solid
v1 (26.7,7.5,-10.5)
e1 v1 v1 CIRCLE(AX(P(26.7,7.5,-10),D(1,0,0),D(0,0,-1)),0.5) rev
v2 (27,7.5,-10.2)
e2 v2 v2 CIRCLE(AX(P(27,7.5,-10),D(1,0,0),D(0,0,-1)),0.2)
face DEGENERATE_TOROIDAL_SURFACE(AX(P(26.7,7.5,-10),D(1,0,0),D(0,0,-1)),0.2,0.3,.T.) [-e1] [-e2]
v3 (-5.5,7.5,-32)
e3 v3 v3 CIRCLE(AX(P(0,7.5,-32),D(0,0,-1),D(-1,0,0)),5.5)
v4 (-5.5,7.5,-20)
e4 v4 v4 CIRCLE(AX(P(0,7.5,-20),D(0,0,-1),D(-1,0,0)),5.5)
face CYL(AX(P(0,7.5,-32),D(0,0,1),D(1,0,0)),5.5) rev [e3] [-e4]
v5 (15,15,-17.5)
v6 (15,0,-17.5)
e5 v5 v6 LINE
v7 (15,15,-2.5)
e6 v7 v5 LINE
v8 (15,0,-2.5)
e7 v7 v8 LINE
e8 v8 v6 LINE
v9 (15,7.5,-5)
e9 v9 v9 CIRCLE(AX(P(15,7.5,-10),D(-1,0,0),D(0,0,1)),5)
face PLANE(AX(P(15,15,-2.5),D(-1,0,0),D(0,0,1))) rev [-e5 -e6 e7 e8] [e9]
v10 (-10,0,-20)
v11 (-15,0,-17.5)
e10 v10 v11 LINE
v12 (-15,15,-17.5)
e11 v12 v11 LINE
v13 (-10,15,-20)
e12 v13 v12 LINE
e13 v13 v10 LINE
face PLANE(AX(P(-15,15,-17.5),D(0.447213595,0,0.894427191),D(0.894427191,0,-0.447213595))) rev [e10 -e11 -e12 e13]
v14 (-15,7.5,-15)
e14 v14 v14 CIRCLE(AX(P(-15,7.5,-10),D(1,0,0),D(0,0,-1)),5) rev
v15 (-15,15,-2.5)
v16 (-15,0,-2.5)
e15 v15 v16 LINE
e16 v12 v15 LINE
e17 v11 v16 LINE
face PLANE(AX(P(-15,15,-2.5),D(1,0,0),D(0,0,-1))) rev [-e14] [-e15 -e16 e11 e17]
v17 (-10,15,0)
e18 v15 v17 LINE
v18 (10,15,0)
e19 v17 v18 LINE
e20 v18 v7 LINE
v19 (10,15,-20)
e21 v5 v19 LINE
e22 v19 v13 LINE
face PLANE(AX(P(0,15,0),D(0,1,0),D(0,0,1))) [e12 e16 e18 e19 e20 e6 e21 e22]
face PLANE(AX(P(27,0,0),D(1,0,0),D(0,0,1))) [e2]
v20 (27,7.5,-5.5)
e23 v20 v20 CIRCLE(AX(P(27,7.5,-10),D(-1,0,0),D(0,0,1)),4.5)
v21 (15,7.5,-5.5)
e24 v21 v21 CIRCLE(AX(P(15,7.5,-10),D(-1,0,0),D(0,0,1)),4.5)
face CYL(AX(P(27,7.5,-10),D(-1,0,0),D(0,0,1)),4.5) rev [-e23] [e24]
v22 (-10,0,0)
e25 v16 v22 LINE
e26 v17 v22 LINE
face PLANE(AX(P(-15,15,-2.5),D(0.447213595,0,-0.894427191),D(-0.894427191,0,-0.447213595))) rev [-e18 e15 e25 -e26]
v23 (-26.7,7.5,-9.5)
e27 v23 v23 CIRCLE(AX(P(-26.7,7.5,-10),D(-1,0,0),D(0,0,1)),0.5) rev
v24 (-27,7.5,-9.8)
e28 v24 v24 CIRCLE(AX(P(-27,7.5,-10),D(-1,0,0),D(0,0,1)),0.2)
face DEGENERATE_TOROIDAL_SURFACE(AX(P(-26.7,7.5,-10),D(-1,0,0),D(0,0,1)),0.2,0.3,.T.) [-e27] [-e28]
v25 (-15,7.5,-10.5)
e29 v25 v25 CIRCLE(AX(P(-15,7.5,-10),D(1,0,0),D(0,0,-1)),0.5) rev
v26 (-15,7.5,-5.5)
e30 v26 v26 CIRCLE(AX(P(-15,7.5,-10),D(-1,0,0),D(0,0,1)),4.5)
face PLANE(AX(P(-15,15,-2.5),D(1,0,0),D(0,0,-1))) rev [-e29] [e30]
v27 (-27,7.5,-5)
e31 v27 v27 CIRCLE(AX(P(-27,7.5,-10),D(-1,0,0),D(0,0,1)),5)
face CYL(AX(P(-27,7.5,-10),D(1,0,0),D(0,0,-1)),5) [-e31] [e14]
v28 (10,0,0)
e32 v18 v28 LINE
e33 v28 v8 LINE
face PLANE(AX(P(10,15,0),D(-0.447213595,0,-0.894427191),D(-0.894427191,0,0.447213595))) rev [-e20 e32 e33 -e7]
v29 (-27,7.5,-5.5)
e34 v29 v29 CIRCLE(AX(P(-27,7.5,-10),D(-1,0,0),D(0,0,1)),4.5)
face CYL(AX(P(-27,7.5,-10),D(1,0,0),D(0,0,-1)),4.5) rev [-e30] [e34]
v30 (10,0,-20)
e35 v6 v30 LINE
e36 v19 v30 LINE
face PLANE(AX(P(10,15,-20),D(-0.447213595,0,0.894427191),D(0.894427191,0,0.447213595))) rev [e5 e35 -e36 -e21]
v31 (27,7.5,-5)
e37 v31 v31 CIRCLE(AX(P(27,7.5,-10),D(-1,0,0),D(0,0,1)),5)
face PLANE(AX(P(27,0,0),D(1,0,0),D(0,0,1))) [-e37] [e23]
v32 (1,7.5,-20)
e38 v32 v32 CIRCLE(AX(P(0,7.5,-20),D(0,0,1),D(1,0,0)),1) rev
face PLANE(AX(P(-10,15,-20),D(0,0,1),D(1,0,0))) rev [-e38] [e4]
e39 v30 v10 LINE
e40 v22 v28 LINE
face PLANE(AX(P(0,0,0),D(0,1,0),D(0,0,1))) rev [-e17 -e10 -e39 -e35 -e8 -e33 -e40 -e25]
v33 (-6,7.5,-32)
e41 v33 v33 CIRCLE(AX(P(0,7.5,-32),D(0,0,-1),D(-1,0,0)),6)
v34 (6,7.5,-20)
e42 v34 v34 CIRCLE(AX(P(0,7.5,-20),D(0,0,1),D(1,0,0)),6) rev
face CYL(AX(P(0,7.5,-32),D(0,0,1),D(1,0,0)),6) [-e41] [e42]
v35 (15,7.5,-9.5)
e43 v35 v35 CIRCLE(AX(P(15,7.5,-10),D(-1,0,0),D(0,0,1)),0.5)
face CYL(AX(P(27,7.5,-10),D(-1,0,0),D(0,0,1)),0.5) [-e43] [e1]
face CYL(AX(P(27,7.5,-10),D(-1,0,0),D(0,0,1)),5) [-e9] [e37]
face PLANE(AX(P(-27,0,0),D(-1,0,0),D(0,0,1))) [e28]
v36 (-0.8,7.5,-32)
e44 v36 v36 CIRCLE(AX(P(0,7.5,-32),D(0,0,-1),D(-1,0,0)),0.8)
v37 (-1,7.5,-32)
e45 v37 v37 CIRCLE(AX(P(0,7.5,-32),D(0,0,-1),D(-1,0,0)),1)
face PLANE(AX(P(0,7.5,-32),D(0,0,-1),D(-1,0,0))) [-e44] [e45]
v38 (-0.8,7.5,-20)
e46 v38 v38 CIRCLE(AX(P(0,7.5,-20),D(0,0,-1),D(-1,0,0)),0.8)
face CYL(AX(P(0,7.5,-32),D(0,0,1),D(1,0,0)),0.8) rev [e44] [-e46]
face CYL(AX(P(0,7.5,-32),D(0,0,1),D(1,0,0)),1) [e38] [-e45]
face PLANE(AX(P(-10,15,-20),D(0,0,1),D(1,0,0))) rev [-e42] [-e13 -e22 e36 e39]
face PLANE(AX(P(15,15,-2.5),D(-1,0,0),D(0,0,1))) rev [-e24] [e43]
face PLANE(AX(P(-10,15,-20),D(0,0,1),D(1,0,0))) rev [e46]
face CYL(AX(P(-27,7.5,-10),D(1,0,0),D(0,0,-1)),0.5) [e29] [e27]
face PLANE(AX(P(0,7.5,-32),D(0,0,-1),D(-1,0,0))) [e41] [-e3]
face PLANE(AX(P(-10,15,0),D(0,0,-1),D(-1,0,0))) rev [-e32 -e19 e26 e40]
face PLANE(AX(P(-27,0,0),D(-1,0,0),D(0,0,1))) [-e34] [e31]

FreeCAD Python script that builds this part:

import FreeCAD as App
import Part
import Sketcher
from FreeCAD import Vector


def edges_at(feature, points):
    """Names of the edges that pass closest to the given points."""
    edges = feature.Shape.Edges
    near = lambda p: min(range(len(edges)), key=lambda i: edges[i].distToShape(Part.Vertex(*p))[0])
    return sorted({f"Edge{near(p) + 1}" for p in points})

doc = App.newDocument("Part")
body = doc.addObject("PartDesign::Body", "Body")

# Sketch on XZ plane
sketch1 = body.newObject("Sketcher::SketchObject", "Sketch")
sketch1.AttachmentSupport = (doc.getObject("XZ_Plane"), [""])
sketch1.MapMode = "FlatFace"
sketch1.addGeometry([
    Part.LineSegment(Vector(15, -18, 0), Vector(10, -20, 0)),  # 0
    Part.LineSegment(Vector(10, -20, 0), Vector(-10, -20, 0)),  # 1
    Part.LineSegment(Vector(-10, -20, 0), Vector(-15, -18, 0)),  # 2
    Part.LineSegment(Vector(-15, -18, 0), Vector(-15, -2, 0)),  # 3
    Part.LineSegment(Vector(-15, -2, 0), Vector(-10, 0, 0)),  # 4
    Part.LineSegment(Vector(-10, 0, 0), Vector(10, 0, 0)),  # 5
    Part.LineSegment(Vector(10, 0, 0), Vector(15, -2, 0)),  # 6
    Part.LineSegment(Vector(15, -2, 0), Vector(15, -18, 0)),  # 7
], False)
sketch1.addConstraint([
    Sketcher.Constraint("Coincident", 0, 2, 1, 1),
    Sketcher.Constraint("Coincident", 1, 2, 2, 1),
    Sketcher.Constraint("Coincident", 2, 2, 3, 1),
    Sketcher.Constraint("Coincident", 3, 2, 4, 1),
    Sketcher.Constraint("Coincident", 4, 2, 5, 1),
    Sketcher.Constraint("Coincident", 5, 2, 6, 1),
    Sketcher.Constraint("Coincident", 6, 2, 7, 1),
    Sketcher.Constraint("Coincident", 7, 2, 0, 1),
    Sketcher.Constraint("Horizontal", 1),
    Sketcher.Constraint("Vertical", 3),
    Sketcher.Constraint("Horizontal", 5),
    Sketcher.Constraint("Vertical", 7),
    Sketcher.Constraint("Symmetric", 4, 2, 5, 2, -1, 1),
    Sketcher.Constraint("Symmetric", 3, 2, 6, 2, -2),
    Sketcher.Constraint("Parallel", 0, 4),
    Sketcher.Constraint("Parallel", 2, 6),
    Sketcher.Constraint("Horizontal", 2, 2, 7, 2),
    Sketcher.Constraint("Vertical", 1, 2, 4, 2),
    Sketcher.Constraint("DistanceX", 1, 2, 1, 1, 20.0),
    Sketcher.Constraint("DistanceY", 3, 1, 3, 2, 15.0),
    Sketcher.Constraint("DistanceY", 0, 2, -1, 1, 20.0),
    Sketcher.Constraint("DistanceX", 2, 2, -1, 1, 15.0),
])
pad1 = body.newObject("PartDesign::Pad", "Pad")
pad1.Profile = sketch1
pad1.Length = 15
pad1.Reversed = True

# Sketch on XY plane
sketch2 = body.newObject("Sketcher::SketchObject", "Sketch001")
sketch2.AttachmentSupport = (doc.getObject("XY_Plane"), [""])
sketch2.MapMode = "FlatFace"
sketch2.AttachmentOffset = App.Placement(Vector(0, 0, -20), App.Rotation())
sketch2.addGeometry([
    Part.Circle(Vector(0, 8, 0), Vector(0, 0, 1), 6),
    Part.Circle(Vector(0, 8, 0), Vector(0, 0, 1), 6),
], False)
sketch2.addConstraint([
    Sketcher.Constraint("Coincident", 1, 3, 0, 3),
    Sketcher.Constraint("PointOnObject", 0, 3, -2),
    Sketcher.Constraint("Diameter", 0, 12.0),
    Sketcher.Constraint("Diameter", 1, 11.0),
    Sketcher.Constraint("DistanceY", -1, 1, 0, 3, 7.5),
])
pad2 = body.newObject("PartDesign::Pad", "Pad001")
pad2.Profile = sketch2
pad2.Length = 12
pad2.Reversed = True

# Sketch on XY plane
sketch3 = body.newObject("Sketcher::SketchObject", "Sketch002")
sketch3.AttachmentSupport = (doc.getObject("XY_Plane"), [""])
sketch3.MapMode = "FlatFace"
sketch3.AttachmentOffset = App.Placement(Vector(0, 0, -20), App.Rotation())
sketch3.addGeometry([
    Part.Circle(Vector(0, 7.5, 0), Vector(0, 0, 1), 1),
    Part.Circle(Vector(0, 7.5, 0), Vector(0, 0, 1), 0.8),
], False)
sketch3.addConstraint([
    Sketcher.Constraint("Coincident", 1, 3, 0, 3),
    Sketcher.Constraint("PointOnObject", 0, 3, -2),
    Sketcher.Constraint("Diameter", 0, 2.0),
    Sketcher.Constraint("Diameter", 1, 1.6),
    Sketcher.Constraint("DistanceY", -1, 1, 0, 3, 7.5),
])
pad3 = body.newObject("PartDesign::Pad", "Pad002")
pad3.Profile = sketch3
pad3.Length = 12
pad3.Reversed = True

# Sketch on YZ plane
sketch4 = body.newObject("Sketcher::SketchObject", "Sketch003")
sketch4.AttachmentSupport = (doc.getObject("YZ_Plane"), [""])
sketch4.MapMode = "FlatFace"
sketch4.AttachmentOffset = App.Placement(Vector(0, 0, -15), App.Rotation())
sketch4.addGeometry([
    Part.Circle(Vector(7.5, -10, 0), Vector(0, 0, 1), 5),
    Part.Circle(Vector(7.5, -10, 0), Vector(0, 0, 1), 4.5),
    Part.Circle(Vector(7.5, -10, 0), Vector(0, 0, 1), 0.5),
], False)
sketch4.addConstraint([
    Sketcher.Constraint("Coincident", 1, 3, 0, 3),
    Sketcher.Constraint("Coincident", 2, 3, 0, 3),
    Sketcher.Constraint("Diameter", 0, 10.0),
    Sketcher.Constraint("Diameter", 1, 9.0),
    Sketcher.Constraint("Diameter", 2, 1.0),
    Sketcher.Constraint("DistanceY", 0, 3, -1, 1, 10.0),
    Sketcher.Constraint("DistanceX", -1, 1, 0, 3, 7.5),
])
pad4 = body.newObject("PartDesign::Pad", "Pad003")
pad4.Profile = sketch4
pad4.Length = 12
pad4.Reversed = True
doc.recompute()

fillet = body.newObject("PartDesign::Fillet", "Fillet")
fillet.Base = (pad4, edges_at(pad4, [(-27, 7.5, -10.5)]))
fillet.Radius = 0.3
doc.recompute()

mirrored = body.newObject("PartDesign::Mirrored", "Mirrored")
mirrored.Originals = [pad4]
mirrored.MirrorPlane = (doc.getObject("YZ_Plane"), [""])
body.Tip = mirrored
doc.recompute()

fillet2 = body.newObject("PartDesign::Fillet", "Fillet001")
fillet2.Base = (mirrored, edges_at(mirrored, [(27, 7.5, -10.5)]))
fillet2.Radius = 0.3

doc.recompute()
